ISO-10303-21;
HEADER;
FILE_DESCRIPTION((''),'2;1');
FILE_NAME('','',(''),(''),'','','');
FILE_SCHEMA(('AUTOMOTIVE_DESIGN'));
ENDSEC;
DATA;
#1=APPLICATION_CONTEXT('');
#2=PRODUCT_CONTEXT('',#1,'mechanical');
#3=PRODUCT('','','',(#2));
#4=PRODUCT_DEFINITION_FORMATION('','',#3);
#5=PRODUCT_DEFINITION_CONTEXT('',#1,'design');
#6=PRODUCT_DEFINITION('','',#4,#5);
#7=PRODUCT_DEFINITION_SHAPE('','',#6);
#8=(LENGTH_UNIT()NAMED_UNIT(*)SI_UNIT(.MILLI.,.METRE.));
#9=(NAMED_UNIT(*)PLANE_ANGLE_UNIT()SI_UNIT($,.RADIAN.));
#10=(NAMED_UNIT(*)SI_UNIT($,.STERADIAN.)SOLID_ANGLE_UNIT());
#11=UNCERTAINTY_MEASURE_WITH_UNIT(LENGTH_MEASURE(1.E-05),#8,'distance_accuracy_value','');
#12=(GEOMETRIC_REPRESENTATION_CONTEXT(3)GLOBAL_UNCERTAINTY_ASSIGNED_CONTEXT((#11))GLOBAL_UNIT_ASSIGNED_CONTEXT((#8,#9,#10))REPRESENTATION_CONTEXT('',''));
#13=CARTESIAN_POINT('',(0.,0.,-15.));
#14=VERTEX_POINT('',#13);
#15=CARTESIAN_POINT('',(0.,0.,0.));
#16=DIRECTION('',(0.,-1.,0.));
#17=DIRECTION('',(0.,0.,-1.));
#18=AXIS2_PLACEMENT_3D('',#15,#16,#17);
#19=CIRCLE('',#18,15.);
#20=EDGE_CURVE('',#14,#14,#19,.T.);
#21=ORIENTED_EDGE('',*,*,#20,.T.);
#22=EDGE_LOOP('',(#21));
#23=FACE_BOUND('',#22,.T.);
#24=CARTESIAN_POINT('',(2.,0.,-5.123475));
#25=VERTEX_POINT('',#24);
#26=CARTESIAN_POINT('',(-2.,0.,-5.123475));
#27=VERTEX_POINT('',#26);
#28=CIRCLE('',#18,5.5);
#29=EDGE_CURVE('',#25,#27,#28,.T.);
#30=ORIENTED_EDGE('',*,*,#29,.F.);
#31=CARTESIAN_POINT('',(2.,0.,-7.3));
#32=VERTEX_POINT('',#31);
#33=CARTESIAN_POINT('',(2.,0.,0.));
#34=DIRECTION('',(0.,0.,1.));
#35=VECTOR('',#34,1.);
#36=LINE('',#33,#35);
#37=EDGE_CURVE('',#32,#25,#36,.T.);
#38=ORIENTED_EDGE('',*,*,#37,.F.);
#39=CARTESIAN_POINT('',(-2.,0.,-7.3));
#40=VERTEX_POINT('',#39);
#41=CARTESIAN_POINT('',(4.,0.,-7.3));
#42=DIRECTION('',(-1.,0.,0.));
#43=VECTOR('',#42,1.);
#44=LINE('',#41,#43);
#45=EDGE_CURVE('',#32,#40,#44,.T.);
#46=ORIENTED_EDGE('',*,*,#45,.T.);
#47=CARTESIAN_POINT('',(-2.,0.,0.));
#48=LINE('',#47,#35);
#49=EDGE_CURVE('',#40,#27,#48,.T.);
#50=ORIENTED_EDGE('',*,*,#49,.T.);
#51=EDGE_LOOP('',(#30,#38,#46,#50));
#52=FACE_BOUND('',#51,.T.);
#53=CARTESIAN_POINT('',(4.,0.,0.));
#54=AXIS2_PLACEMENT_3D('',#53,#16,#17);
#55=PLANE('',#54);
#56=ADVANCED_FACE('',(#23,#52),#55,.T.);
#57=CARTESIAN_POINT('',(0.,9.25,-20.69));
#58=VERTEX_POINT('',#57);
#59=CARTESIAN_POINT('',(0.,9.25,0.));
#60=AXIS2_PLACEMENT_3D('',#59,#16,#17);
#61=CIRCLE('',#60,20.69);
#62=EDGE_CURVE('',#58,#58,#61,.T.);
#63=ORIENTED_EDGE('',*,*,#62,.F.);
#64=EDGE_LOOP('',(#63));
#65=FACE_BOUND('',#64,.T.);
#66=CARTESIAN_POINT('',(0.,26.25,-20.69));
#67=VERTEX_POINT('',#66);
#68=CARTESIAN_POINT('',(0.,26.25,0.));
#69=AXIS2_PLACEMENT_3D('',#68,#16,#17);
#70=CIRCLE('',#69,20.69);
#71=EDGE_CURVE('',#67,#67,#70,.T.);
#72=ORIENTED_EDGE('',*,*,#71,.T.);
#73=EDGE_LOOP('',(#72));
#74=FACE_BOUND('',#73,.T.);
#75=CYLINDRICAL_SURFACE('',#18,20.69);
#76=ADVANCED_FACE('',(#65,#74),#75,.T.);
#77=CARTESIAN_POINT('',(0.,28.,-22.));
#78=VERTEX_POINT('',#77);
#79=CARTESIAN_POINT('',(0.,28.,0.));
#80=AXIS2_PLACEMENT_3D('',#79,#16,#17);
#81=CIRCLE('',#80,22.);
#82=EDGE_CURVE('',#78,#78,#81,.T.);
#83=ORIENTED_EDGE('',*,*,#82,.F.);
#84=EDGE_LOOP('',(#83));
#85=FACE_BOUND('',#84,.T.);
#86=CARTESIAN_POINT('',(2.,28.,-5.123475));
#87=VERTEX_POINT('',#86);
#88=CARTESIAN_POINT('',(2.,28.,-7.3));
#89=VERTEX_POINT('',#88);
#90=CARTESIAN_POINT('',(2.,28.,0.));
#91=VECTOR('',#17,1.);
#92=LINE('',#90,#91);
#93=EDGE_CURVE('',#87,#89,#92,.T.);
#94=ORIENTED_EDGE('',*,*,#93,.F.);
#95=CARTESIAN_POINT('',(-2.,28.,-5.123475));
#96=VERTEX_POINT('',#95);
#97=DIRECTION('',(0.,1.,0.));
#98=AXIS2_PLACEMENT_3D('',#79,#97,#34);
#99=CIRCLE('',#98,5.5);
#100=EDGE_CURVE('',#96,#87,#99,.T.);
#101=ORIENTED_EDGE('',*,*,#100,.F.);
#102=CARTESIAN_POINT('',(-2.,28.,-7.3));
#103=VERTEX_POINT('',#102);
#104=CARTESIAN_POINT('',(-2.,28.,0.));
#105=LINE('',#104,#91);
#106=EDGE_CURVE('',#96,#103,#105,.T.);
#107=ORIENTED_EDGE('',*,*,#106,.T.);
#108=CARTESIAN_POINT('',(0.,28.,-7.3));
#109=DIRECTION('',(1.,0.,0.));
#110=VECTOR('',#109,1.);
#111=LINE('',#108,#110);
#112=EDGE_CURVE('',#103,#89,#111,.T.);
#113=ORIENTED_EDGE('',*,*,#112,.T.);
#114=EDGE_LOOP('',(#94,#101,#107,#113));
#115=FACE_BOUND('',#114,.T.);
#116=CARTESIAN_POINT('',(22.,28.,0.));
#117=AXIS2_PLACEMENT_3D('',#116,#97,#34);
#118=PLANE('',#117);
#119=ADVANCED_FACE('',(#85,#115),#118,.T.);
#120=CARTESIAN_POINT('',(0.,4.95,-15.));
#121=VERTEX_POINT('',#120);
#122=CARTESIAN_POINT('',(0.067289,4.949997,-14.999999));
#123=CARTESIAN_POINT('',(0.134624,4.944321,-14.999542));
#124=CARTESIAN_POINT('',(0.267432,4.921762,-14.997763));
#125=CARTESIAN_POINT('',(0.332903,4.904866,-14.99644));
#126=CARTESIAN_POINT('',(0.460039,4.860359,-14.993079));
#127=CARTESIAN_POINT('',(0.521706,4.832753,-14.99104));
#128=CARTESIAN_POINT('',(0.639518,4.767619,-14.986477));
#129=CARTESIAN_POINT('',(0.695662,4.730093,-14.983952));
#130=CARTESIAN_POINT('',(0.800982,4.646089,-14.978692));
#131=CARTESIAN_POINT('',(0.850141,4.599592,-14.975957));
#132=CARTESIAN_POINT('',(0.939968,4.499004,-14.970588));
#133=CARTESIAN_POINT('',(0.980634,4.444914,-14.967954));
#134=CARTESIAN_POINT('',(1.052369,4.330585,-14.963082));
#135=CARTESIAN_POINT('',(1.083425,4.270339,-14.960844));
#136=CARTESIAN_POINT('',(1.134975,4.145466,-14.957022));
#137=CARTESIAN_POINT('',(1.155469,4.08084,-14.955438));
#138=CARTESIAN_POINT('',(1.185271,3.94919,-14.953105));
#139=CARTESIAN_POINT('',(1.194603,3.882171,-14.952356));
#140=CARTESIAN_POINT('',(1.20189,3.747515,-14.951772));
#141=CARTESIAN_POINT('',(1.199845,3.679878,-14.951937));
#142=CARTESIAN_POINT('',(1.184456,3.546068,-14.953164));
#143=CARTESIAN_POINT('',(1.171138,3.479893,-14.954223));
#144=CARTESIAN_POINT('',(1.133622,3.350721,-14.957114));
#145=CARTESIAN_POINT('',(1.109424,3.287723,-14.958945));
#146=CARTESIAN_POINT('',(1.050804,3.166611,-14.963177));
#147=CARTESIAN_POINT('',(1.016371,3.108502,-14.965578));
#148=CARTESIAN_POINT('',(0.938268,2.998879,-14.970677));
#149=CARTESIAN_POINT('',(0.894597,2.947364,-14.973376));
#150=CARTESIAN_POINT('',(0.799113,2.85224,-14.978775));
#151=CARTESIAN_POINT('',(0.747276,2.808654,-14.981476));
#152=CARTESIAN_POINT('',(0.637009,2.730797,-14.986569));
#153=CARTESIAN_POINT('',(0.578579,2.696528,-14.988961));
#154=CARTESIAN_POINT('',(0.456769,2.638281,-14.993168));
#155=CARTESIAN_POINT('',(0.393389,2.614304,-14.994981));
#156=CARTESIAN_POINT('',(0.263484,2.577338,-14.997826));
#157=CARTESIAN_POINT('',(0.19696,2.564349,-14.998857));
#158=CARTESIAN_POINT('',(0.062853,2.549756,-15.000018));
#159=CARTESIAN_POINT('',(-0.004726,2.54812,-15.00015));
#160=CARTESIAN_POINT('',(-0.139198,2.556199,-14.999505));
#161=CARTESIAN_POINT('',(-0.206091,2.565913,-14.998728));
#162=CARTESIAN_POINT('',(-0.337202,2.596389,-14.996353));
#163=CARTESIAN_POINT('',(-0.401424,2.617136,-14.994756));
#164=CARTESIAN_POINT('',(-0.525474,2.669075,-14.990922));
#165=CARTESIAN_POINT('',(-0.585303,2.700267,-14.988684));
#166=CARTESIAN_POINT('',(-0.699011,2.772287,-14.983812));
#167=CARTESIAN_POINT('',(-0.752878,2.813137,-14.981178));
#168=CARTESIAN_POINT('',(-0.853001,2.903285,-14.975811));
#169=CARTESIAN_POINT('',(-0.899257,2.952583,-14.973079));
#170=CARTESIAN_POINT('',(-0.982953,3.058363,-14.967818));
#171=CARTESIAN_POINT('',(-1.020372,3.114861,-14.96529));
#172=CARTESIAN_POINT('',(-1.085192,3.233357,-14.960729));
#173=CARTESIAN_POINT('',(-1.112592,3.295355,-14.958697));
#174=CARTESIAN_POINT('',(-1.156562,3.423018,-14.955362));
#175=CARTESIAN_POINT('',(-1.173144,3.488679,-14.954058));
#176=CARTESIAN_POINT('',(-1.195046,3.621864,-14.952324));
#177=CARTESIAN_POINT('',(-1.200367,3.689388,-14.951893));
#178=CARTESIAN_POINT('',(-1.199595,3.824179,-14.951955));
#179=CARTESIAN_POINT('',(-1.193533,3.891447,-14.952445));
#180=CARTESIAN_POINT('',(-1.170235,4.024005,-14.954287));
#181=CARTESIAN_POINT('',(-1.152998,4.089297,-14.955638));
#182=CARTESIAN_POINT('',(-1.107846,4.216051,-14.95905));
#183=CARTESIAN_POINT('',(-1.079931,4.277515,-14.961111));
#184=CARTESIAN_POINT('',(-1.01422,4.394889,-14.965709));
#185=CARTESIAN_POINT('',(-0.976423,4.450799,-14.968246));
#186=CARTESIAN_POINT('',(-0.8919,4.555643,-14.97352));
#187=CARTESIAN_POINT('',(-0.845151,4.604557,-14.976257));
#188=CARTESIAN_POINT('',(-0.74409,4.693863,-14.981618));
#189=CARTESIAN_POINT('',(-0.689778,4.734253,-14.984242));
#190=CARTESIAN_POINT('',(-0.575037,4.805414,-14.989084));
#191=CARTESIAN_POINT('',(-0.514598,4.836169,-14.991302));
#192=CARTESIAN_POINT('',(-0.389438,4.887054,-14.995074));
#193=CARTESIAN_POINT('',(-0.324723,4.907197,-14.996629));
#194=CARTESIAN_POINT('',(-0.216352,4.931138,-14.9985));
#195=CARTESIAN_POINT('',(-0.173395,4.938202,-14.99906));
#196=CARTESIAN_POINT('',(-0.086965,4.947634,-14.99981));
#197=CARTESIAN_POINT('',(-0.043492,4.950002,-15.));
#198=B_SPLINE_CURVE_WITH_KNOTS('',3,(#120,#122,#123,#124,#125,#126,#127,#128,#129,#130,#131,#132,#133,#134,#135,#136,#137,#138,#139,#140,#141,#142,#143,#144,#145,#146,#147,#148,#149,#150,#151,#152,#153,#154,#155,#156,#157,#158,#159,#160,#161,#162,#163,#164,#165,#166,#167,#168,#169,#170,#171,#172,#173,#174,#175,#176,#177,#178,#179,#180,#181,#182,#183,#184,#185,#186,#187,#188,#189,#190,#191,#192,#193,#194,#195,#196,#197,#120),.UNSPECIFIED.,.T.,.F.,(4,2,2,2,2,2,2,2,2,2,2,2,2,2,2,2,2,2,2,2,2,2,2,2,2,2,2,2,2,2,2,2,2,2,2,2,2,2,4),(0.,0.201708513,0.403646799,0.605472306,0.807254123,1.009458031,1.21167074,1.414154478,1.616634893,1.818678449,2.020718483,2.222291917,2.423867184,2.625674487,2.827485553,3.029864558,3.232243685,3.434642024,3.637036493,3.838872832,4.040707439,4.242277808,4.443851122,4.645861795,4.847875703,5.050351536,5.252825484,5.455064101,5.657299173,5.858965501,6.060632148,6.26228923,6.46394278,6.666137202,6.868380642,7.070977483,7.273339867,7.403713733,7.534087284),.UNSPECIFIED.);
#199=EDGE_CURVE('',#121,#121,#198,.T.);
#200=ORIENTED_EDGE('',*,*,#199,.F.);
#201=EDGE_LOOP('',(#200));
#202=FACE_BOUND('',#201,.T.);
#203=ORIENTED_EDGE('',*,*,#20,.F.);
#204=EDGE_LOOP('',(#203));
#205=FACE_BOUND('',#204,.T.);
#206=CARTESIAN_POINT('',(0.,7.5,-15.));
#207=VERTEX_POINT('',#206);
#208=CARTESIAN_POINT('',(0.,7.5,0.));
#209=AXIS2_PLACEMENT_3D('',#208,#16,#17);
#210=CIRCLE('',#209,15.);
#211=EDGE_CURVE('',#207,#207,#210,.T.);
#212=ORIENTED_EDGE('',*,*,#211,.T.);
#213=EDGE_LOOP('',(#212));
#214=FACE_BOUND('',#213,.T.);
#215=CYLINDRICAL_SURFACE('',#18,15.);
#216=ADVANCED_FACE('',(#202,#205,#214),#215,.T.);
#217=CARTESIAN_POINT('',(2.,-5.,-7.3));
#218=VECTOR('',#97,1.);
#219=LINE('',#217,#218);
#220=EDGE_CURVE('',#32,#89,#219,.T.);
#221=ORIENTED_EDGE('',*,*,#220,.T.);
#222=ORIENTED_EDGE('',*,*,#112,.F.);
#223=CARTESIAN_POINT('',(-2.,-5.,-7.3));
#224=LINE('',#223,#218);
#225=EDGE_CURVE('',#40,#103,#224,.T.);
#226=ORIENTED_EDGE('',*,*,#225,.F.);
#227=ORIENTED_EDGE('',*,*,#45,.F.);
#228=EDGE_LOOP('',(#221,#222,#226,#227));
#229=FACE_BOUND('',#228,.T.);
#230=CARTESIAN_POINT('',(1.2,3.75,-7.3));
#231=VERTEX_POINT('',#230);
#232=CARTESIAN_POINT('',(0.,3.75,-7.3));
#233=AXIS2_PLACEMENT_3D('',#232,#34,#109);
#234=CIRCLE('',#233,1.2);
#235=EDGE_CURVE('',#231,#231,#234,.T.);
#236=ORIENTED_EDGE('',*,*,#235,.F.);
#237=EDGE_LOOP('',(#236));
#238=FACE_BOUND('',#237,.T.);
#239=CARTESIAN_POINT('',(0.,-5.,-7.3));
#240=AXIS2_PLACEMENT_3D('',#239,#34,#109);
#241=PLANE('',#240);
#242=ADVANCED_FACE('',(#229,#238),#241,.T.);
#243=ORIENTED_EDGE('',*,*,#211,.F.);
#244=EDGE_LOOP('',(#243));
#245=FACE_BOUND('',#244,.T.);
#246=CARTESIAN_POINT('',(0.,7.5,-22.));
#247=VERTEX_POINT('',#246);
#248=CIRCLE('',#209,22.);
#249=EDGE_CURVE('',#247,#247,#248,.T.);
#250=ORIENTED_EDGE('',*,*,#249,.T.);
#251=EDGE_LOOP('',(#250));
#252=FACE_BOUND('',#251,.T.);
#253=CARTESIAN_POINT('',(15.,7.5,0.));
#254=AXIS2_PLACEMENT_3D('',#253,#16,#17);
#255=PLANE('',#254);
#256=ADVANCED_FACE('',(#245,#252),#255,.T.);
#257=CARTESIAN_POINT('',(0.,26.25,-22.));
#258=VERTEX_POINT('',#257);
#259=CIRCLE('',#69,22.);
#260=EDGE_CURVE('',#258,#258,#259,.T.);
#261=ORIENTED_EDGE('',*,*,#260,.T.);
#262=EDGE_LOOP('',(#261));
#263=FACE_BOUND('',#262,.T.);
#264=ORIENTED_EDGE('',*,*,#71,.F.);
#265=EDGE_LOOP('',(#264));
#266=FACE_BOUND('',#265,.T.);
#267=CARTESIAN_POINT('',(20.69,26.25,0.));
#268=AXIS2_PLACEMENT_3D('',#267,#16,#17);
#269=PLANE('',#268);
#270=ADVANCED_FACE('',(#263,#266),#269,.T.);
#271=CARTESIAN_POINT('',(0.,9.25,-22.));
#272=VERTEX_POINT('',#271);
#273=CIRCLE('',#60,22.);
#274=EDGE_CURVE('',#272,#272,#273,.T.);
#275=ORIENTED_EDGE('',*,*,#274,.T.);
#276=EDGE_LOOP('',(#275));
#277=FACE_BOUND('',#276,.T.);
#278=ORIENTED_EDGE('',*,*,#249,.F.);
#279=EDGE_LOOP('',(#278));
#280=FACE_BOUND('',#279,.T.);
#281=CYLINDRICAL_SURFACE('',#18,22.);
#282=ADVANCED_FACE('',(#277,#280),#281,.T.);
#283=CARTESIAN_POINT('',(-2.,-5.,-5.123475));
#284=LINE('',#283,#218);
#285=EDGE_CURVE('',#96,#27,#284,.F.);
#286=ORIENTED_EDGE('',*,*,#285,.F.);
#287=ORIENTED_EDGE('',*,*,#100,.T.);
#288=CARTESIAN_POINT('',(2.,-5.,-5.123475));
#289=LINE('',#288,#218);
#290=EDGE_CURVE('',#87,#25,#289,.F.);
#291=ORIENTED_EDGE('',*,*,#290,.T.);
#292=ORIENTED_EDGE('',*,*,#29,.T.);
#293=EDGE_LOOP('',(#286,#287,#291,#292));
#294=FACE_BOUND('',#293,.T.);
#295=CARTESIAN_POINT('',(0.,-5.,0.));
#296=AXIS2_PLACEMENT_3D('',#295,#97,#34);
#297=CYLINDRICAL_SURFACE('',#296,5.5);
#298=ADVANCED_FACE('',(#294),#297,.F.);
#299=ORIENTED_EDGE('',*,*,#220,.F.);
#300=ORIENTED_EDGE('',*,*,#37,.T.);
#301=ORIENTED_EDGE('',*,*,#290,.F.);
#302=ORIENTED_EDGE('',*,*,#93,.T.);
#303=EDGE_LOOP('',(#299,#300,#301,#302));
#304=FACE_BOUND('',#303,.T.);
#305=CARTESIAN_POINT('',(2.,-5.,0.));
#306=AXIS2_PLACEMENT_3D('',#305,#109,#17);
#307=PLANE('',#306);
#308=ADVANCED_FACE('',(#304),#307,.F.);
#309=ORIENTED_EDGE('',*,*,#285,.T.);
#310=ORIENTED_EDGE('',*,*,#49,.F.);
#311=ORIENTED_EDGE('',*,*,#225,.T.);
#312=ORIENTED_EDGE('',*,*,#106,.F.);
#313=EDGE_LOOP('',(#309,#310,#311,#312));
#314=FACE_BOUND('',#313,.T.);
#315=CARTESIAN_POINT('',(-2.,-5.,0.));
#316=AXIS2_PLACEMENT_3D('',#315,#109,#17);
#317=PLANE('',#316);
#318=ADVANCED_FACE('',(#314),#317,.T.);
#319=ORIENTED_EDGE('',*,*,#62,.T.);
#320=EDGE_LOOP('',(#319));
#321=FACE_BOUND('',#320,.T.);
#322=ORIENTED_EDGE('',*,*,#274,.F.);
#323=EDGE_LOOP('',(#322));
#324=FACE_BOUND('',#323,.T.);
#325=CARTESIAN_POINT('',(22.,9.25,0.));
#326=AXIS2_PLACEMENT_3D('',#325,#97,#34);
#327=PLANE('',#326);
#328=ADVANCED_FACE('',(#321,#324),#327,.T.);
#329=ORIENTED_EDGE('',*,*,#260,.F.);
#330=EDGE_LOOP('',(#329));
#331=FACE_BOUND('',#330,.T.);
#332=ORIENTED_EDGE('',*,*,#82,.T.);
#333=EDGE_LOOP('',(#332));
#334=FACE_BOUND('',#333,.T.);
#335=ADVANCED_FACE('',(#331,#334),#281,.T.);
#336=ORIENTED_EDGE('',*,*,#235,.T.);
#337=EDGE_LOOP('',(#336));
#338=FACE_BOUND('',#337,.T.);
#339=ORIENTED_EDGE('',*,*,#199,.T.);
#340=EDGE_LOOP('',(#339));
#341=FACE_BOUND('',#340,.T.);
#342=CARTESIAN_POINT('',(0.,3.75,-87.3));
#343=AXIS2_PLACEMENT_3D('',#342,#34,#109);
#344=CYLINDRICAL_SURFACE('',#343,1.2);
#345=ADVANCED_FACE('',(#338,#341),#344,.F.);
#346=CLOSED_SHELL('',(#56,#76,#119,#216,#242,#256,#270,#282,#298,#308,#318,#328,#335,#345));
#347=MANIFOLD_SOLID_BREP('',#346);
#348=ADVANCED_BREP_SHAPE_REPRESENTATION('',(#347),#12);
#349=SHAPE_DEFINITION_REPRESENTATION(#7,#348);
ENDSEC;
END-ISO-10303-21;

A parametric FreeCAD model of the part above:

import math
import FreeCAD as App
import Part
import Sketcher
Q = App.Units.Quantity

doc = App.newDocument("Part")
body = doc.addObject("PartDesign::Body", "Body")

sketch1 = body.newObject("Sketcher::SketchObject", "Sketch")
sketch1.AttachmentSupport = (doc.getObject("XY_Plane"), [""])
sketch1.MapMode = "FlatFace"
sketch1.addGeometry([
    Part.LineSegment(App.Vector(4, 0, 0), App.Vector(15, 0, 0)),
    Part.LineSegment(App.Vector(15, 0, 0), App.Vector(15, 7.5, 0)),
    Part.LineSegment(App.Vector(15, 7.5, 0), App.Vector(22, 7.5, 0)),
    Part.LineSegment(App.Vector(22, 7.5, 0), App.Vector(22, 9.25, 0)),
    Part.LineSegment(App.Vector(22, 9.25, 0), App.Vector(20.69, 9.25, 0)),
    Part.LineSegment(App.Vector(20.69, 9.25, 0), App.Vector(20.69, 26.25, 0)),
    Part.LineSegment(App.Vector(20.69, 26.25, 0), App.Vector(22, 26.25, 0)),
    Part.LineSegment(App.Vector(22, 26.25, 0), App.Vector(22, 28, 0)),
    Part.LineSegment(App.Vector(22, 28, 0), App.Vector(4, 28, 0)),
    Part.LineSegment(App.Vector(4, 28, 0), App.Vector(4, 0, 0)),
], False)
sketch1.addConstraint([
    Sketcher.Constraint("Coincident", 0, 2, 1, 1),
    Sketcher.Constraint("Coincident", 1, 2, 2, 1),
    Sketcher.Constraint("Coincident", 2, 2, 3, 1),
    Sketcher.Constraint("Coincident", 3, 2, 4, 1),
    Sketcher.Constraint("Coincident", 4, 2, 5, 1),
    Sketcher.Constraint("Coincident", 5, 2, 6, 1),
    Sketcher.Constraint("Coincident", 6, 2, 7, 1),
    Sketcher.Constraint("Coincident", 7, 2, 8, 1),
    Sketcher.Constraint("Coincident", 8, 2, 9, 1),
    Sketcher.Constraint("Coincident", 9, 2, 0, 1),
    Sketcher.Constraint("Horizontal", 0),
    Sketcher.Constraint("Vertical", 1),
    Sketcher.Constraint("Horizontal", 2),
    Sketcher.Constraint("Vertical", 3),
    Sketcher.Constraint("Horizontal", 4),
    Sketcher.Constraint("Vertical", 5),
    Sketcher.Constraint("Horizontal", 6),
    Sketcher.Constraint("Vertical", 7),
    Sketcher.Constraint("Horizontal", 8),
    Sketcher.Constraint("Vertical", 9),
    Sketcher.Constraint("PointOnObject", 0, 2, -1),
    Sketcher.Constraint("Vertical", 3, 2, 6, 2),
    Sketcher.Constraint("Equal", 3, 7),
    Sketcher.Constraint("DistanceX", 0, 1, 0, 2, Q("11 mm")),
    Sketcher.Constraint("DistanceX", 2, 1, 2, 2, Q("7 mm")),
    Sketcher.Constraint("DistanceY", 5, 1, 5, 2, Q("17 mm")),
    Sketcher.Constraint("DistanceY", 9, 2, 9, 1, Q("28 mm")),
    Sketcher.Constraint("DistanceY", 1, 1, 1, 2, Q("7.5 mm")),
    Sketcher.Constraint("DistanceX", -1, 1, 0, 2, Q("15 mm")),
    Sketcher.Constraint("DistanceX", 4, 2, 4, 1, Q("1.31 mm")),
])
revolution = body.newObject("PartDesign::Revolution", "Revolution")
revolution.Profile = sketch1
revolution.ReferenceAxis = (sketch1, ["V_Axis"])
revolution.Angle = 360

sketch2 = body.newObject("Sketcher::SketchObject", "Sketch001")
sketch2.AttachmentSupport = (doc.getObject("XZ_Plane"), [""])
sketch2.MapMode = "FlatFace"
sketch2.AttachmentOffset = App.Placement(App.Vector(0, 0, -28), App.Rotation())
sketch2.addGeometry(Part.Circle(App.Vector(0, 0, 0), App.Vector(0, 0, 1), 5.5), False)
sketch2.addConstraint([
    Sketcher.Constraint("Coincident", 0, 3, -1, 1),
    Sketcher.Constraint("Diameter", 0, Q("11 mm")),
])
pocket1 = body.newObject("PartDesign::Pocket", "Pocket")
pocket1.Profile = sketch2
pocket1.Length = 33
pocket1.Reversed = True

sketch3 = body.newObject("Sketcher::SketchObject", "Sketch002")
sketch3.AttachmentSupport = (doc.getObject("XZ_Plane"), [""])
sketch3.MapMode = "FlatFace"
sketch3.AttachmentOffset = App.Placement(App.Vector(0, 0, -28), App.Rotation())
sketch3.addGeometry([
    Part.LineSegment(App.Vector(-2, -7.3, 0), App.Vector(-2, -5.123475, 0)),
    Part.ArcOfCircle(Part.Circle(App.Vector(0, 0, 0), App.Vector(0, 0, 1), 5.5), math.radians(-111.323686), math.radians(-68.676314)),
    Part.LineSegment(App.Vector(2, -5.123475, 0), App.Vector(2, -7.3, 0)),
    Part.LineSegment(App.Vector(2, -7.3, 0), App.Vector(-2, -7.3, 0)),
], False)
sketch3.addConstraint([
    Sketcher.Constraint("Coincident", 0, 2, 1, 1),
    Sketcher.Constraint("Coincident", 1, 2, 2, 1),
    Sketcher.Constraint("Coincident", 2, 2, 3, 1),
    Sketcher.Constraint("Coincident", 3, 2, 0, 1),
    Sketcher.Constraint("Vertical", 0),
    Sketcher.Constraint("Vertical", 2),
    Sketcher.Constraint("Horizontal", 3),
    Sketcher.Constraint("Coincident", 1, 3, -1, 1),
    Sketcher.Constraint("Horizontal", 0, 2, 1, 2),
    Sketcher.Constraint("Radius", 1, Q("5.5 mm")),
    Sketcher.Constraint("DistanceX", 3, 2, 3, 1, Q("4 mm")),
    Sketcher.Constraint("DistanceY", 2, 2, -1, 1, Q("7.3 mm")),
])
pocket2 = body.newObject("PartDesign::Pocket", "Pocket001")
pocket2.Profile = sketch3
pocket2.Length = 33
pocket2.Reversed = True

sketch4 = body.newObject("Sketcher::SketchObject", "Sketch003")
sketch4.AttachmentSupport = (doc.getObject("XY_Plane"), [""])
sketch4.MapMode = "FlatFace"
sketch4.AttachmentOffset = App.Placement(App.Vector(0, 0, -7.3), App.Rotation())
sketch4.addGeometry(Part.Circle(App.Vector(0, 3.75, 0), App.Vector(0, 0, 1), 1.2), False)
sketch4.addConstraint([
    Sketcher.Constraint("PointOnObject", 0, 3, -2),
    Sketcher.Constraint("Diameter", 0, Q("2.4 mm")),
    Sketcher.Constraint("DistanceY", -1, 1, 0, 3, Q("3.75 mm")),
])
pocket3 = body.newObject("PartDesign::Pocket", "Pocket002")
pocket3.Profile = sketch4
pocket3.Length = 80

doc.recompute()
